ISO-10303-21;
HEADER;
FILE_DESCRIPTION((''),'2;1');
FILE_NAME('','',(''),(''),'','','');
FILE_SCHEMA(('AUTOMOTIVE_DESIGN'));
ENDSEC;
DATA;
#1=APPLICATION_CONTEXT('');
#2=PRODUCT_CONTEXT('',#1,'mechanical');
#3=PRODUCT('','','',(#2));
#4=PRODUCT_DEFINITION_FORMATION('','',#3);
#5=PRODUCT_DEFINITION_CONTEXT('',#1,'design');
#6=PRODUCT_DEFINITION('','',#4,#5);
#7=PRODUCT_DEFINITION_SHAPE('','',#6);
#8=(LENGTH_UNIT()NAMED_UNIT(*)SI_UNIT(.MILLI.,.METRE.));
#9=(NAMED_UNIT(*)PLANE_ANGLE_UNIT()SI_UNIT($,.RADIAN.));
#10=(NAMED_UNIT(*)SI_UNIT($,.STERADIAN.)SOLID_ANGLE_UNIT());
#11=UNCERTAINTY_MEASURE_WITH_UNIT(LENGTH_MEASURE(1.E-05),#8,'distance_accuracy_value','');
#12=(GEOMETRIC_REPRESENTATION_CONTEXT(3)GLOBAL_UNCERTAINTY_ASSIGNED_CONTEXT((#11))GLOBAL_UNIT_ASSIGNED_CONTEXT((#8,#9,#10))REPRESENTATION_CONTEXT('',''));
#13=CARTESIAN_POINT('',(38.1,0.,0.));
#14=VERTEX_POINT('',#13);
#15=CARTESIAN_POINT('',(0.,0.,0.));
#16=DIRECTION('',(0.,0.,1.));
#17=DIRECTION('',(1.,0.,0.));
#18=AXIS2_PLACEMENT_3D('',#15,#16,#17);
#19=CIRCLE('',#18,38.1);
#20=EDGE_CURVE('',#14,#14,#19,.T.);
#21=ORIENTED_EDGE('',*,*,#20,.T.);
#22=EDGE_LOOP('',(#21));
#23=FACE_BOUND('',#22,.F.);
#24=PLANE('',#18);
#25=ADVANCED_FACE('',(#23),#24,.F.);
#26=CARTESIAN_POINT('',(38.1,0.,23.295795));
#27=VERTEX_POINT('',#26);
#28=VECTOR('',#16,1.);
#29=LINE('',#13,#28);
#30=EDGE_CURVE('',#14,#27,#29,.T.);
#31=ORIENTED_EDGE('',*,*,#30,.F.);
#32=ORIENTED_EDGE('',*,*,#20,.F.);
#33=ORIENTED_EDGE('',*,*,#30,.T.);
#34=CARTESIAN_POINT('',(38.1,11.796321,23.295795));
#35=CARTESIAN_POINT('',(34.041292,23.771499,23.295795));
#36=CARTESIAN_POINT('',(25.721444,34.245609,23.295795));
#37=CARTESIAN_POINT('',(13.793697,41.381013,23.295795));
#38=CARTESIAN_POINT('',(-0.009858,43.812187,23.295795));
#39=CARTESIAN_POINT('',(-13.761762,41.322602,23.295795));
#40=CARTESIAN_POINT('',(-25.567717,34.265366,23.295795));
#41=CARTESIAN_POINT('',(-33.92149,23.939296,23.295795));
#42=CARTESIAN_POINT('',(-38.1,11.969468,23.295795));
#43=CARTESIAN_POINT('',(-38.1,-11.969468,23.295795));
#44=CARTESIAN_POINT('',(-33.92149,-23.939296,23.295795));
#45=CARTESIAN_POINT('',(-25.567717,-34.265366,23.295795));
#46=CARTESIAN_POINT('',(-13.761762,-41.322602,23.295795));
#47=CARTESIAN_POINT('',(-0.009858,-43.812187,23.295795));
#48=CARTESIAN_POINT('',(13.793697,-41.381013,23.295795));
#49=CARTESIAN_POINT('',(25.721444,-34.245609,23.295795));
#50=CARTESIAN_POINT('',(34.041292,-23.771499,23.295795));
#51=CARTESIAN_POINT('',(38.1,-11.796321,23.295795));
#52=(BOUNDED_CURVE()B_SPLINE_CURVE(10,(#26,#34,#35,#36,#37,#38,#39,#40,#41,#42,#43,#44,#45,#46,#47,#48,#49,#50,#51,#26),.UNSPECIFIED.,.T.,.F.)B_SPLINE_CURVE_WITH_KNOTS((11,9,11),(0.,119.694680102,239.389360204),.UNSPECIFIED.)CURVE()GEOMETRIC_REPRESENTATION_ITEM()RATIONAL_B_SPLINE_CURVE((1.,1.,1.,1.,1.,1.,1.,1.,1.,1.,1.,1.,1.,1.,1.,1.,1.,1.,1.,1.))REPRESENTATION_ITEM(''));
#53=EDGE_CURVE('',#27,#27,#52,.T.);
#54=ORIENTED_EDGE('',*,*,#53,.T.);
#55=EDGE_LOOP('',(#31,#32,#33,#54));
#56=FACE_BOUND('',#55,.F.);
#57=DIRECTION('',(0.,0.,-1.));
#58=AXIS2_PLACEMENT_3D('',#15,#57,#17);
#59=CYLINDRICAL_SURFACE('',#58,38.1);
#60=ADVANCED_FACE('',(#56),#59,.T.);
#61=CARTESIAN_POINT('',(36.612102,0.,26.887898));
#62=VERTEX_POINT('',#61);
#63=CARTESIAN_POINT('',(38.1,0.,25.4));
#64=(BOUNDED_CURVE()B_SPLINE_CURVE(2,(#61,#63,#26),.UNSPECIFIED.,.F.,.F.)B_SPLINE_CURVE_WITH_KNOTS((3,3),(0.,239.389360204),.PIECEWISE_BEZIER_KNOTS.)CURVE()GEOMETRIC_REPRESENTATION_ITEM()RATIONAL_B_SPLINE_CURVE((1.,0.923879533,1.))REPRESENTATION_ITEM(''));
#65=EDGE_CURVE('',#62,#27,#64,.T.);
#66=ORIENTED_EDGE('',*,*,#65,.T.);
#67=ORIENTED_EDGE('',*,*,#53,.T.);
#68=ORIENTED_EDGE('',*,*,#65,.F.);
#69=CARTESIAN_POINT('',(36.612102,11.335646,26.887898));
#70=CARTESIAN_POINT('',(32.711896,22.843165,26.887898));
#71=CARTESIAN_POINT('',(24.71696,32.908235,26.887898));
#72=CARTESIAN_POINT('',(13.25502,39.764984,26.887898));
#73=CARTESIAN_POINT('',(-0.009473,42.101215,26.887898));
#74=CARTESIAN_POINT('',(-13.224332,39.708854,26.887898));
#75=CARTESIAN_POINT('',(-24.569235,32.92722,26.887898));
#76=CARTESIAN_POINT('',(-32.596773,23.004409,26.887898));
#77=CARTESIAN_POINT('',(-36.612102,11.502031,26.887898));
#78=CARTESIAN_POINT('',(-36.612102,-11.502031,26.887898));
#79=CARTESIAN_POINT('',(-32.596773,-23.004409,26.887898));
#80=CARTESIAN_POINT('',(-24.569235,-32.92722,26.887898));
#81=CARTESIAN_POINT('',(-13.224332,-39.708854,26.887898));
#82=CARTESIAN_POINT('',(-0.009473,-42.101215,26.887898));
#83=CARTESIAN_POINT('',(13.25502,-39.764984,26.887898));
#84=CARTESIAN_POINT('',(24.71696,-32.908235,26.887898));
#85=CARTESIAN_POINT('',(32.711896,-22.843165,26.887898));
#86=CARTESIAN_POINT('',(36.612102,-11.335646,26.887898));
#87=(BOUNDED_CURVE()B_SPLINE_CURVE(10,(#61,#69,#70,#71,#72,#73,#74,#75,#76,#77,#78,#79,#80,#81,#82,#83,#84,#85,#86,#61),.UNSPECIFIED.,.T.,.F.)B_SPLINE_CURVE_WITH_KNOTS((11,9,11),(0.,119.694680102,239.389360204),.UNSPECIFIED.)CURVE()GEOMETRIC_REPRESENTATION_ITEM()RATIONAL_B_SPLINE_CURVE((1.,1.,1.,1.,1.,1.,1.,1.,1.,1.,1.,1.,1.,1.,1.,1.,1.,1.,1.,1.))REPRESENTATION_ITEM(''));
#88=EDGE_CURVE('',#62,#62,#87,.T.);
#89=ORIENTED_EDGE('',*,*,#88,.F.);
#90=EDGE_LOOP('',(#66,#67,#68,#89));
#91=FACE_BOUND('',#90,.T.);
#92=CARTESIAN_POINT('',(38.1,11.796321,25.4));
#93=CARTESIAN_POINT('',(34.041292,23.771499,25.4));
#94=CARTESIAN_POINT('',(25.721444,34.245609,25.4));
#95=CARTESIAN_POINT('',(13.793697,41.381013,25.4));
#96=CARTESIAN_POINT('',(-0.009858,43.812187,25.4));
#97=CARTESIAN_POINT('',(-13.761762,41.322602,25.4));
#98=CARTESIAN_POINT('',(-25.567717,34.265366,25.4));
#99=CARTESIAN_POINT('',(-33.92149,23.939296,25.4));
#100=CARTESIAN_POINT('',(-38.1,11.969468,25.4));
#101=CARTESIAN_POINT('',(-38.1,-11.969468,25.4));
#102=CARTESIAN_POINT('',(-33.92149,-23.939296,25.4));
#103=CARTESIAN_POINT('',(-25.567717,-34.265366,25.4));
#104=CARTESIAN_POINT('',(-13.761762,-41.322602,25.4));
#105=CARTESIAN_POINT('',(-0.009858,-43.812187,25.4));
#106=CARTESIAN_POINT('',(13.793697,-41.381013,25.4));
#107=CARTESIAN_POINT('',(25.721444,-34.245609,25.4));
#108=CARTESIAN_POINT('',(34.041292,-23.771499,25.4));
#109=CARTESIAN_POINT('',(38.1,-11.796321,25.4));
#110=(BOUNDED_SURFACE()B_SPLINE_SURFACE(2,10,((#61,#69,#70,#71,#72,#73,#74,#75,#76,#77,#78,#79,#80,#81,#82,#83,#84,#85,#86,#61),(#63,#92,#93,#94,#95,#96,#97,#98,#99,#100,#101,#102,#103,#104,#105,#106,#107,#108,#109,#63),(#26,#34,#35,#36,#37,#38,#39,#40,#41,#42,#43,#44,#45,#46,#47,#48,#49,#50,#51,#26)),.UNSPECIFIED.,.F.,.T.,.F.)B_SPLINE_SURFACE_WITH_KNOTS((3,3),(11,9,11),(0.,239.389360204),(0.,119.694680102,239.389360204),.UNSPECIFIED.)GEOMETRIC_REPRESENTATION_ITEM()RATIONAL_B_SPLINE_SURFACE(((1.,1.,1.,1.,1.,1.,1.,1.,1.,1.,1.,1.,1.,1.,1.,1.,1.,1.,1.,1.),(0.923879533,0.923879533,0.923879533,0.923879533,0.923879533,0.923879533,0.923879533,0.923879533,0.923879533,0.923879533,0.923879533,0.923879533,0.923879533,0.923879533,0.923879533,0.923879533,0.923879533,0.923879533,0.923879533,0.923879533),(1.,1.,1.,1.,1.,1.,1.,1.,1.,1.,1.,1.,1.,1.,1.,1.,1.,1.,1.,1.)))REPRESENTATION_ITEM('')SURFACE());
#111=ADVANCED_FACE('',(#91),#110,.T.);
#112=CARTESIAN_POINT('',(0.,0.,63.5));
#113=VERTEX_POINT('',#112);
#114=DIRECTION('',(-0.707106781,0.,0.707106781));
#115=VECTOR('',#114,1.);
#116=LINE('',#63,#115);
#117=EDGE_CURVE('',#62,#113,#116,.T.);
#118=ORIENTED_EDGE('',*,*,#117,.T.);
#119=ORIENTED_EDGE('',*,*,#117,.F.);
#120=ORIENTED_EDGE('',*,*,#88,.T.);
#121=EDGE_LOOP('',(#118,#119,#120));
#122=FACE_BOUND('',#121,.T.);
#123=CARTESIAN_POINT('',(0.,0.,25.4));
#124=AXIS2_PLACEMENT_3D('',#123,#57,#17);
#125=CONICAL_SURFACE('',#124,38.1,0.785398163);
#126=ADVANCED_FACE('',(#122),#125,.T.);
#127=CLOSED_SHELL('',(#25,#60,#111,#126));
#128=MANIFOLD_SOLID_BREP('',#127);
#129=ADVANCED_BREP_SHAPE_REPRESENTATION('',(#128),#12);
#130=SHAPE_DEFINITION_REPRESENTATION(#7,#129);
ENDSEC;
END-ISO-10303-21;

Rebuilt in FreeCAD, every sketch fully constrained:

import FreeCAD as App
import Part
import Sketcher
Q = App.Units.Quantity


def edges_at(feature, points):
    """Names of the edges that pass closest to the given points."""
    edges = feature.Shape.Edges
    near = lambda p: min(range(len(edges)), key=lambda i: edges[i].distToShape(Part.Vertex(*p))[0])
    return sorted({f"Edge{near(p) + 1}" for p in points})

doc = App.newDocument("Part")
body = doc.addObject("PartDesign::Body", "Body")

sketch1 = doc.addObject("Sketcher::SketchObject", "Sketch")
body.addObject(sketch1)
sketch1.AttachmentSupport = (doc.XY_Plane, [""])
sketch1.MapMode = "FlatFace"
sketch1.addGeometry(Part.Circle(App.Vector(0, 0, 0), App.Vector(0, 0, 1), 38), False)
sketch1.addConstraint([
    Sketcher.Constraint("Coincident", 0, 3, -1, 1),
    Sketcher.Constraint("Diameter", 0, Q("3 in")),
])
pad1 = doc.addObject("PartDesign::Pad", "Pad")
body.addObject(pad1)
pad1.Profile = sketch1
pad1.Length = Q("1 in")

sketch2 = doc.addObject("Sketcher::SketchObject", "Sketch001")
body.addObject(sketch2)
sketch2.AttachmentSupport = (doc.XY_Plane, [""])
sketch2.MapMode = "FlatFace"
sketch2.AttachmentOffset = App.Placement(App.Vector(0, 0, 1 * 25.4), App.Rotation())
sketch2.addGeometry(Part.Circle(App.Vector(0, 0, 0), App.Vector(0, 0, 1), 38), False)
sketch2.addConstraint([
    Sketcher.Constraint("Coincident", 0, 3, -1, 1),
    Sketcher.Constraint("Diameter", 0, Q("3 in")),
])
pad2 = doc.addObject("PartDesign::Pad", "Pad001")
body.addObject(pad2)
pad2.Profile = sketch2
pad2.Length = Q("1.5 in")
pad2.TaperAngle = -45
doc.recompute()

fillet = doc.addObject("PartDesign::Fillet", "Fillet")
body.addObject(fillet)
fillet.Base = (pad2, edges_at(pad2, [(-38.1, 0, 25.4)]))
fillet.Radius = Q("0.2 in")

doc.recompute()
